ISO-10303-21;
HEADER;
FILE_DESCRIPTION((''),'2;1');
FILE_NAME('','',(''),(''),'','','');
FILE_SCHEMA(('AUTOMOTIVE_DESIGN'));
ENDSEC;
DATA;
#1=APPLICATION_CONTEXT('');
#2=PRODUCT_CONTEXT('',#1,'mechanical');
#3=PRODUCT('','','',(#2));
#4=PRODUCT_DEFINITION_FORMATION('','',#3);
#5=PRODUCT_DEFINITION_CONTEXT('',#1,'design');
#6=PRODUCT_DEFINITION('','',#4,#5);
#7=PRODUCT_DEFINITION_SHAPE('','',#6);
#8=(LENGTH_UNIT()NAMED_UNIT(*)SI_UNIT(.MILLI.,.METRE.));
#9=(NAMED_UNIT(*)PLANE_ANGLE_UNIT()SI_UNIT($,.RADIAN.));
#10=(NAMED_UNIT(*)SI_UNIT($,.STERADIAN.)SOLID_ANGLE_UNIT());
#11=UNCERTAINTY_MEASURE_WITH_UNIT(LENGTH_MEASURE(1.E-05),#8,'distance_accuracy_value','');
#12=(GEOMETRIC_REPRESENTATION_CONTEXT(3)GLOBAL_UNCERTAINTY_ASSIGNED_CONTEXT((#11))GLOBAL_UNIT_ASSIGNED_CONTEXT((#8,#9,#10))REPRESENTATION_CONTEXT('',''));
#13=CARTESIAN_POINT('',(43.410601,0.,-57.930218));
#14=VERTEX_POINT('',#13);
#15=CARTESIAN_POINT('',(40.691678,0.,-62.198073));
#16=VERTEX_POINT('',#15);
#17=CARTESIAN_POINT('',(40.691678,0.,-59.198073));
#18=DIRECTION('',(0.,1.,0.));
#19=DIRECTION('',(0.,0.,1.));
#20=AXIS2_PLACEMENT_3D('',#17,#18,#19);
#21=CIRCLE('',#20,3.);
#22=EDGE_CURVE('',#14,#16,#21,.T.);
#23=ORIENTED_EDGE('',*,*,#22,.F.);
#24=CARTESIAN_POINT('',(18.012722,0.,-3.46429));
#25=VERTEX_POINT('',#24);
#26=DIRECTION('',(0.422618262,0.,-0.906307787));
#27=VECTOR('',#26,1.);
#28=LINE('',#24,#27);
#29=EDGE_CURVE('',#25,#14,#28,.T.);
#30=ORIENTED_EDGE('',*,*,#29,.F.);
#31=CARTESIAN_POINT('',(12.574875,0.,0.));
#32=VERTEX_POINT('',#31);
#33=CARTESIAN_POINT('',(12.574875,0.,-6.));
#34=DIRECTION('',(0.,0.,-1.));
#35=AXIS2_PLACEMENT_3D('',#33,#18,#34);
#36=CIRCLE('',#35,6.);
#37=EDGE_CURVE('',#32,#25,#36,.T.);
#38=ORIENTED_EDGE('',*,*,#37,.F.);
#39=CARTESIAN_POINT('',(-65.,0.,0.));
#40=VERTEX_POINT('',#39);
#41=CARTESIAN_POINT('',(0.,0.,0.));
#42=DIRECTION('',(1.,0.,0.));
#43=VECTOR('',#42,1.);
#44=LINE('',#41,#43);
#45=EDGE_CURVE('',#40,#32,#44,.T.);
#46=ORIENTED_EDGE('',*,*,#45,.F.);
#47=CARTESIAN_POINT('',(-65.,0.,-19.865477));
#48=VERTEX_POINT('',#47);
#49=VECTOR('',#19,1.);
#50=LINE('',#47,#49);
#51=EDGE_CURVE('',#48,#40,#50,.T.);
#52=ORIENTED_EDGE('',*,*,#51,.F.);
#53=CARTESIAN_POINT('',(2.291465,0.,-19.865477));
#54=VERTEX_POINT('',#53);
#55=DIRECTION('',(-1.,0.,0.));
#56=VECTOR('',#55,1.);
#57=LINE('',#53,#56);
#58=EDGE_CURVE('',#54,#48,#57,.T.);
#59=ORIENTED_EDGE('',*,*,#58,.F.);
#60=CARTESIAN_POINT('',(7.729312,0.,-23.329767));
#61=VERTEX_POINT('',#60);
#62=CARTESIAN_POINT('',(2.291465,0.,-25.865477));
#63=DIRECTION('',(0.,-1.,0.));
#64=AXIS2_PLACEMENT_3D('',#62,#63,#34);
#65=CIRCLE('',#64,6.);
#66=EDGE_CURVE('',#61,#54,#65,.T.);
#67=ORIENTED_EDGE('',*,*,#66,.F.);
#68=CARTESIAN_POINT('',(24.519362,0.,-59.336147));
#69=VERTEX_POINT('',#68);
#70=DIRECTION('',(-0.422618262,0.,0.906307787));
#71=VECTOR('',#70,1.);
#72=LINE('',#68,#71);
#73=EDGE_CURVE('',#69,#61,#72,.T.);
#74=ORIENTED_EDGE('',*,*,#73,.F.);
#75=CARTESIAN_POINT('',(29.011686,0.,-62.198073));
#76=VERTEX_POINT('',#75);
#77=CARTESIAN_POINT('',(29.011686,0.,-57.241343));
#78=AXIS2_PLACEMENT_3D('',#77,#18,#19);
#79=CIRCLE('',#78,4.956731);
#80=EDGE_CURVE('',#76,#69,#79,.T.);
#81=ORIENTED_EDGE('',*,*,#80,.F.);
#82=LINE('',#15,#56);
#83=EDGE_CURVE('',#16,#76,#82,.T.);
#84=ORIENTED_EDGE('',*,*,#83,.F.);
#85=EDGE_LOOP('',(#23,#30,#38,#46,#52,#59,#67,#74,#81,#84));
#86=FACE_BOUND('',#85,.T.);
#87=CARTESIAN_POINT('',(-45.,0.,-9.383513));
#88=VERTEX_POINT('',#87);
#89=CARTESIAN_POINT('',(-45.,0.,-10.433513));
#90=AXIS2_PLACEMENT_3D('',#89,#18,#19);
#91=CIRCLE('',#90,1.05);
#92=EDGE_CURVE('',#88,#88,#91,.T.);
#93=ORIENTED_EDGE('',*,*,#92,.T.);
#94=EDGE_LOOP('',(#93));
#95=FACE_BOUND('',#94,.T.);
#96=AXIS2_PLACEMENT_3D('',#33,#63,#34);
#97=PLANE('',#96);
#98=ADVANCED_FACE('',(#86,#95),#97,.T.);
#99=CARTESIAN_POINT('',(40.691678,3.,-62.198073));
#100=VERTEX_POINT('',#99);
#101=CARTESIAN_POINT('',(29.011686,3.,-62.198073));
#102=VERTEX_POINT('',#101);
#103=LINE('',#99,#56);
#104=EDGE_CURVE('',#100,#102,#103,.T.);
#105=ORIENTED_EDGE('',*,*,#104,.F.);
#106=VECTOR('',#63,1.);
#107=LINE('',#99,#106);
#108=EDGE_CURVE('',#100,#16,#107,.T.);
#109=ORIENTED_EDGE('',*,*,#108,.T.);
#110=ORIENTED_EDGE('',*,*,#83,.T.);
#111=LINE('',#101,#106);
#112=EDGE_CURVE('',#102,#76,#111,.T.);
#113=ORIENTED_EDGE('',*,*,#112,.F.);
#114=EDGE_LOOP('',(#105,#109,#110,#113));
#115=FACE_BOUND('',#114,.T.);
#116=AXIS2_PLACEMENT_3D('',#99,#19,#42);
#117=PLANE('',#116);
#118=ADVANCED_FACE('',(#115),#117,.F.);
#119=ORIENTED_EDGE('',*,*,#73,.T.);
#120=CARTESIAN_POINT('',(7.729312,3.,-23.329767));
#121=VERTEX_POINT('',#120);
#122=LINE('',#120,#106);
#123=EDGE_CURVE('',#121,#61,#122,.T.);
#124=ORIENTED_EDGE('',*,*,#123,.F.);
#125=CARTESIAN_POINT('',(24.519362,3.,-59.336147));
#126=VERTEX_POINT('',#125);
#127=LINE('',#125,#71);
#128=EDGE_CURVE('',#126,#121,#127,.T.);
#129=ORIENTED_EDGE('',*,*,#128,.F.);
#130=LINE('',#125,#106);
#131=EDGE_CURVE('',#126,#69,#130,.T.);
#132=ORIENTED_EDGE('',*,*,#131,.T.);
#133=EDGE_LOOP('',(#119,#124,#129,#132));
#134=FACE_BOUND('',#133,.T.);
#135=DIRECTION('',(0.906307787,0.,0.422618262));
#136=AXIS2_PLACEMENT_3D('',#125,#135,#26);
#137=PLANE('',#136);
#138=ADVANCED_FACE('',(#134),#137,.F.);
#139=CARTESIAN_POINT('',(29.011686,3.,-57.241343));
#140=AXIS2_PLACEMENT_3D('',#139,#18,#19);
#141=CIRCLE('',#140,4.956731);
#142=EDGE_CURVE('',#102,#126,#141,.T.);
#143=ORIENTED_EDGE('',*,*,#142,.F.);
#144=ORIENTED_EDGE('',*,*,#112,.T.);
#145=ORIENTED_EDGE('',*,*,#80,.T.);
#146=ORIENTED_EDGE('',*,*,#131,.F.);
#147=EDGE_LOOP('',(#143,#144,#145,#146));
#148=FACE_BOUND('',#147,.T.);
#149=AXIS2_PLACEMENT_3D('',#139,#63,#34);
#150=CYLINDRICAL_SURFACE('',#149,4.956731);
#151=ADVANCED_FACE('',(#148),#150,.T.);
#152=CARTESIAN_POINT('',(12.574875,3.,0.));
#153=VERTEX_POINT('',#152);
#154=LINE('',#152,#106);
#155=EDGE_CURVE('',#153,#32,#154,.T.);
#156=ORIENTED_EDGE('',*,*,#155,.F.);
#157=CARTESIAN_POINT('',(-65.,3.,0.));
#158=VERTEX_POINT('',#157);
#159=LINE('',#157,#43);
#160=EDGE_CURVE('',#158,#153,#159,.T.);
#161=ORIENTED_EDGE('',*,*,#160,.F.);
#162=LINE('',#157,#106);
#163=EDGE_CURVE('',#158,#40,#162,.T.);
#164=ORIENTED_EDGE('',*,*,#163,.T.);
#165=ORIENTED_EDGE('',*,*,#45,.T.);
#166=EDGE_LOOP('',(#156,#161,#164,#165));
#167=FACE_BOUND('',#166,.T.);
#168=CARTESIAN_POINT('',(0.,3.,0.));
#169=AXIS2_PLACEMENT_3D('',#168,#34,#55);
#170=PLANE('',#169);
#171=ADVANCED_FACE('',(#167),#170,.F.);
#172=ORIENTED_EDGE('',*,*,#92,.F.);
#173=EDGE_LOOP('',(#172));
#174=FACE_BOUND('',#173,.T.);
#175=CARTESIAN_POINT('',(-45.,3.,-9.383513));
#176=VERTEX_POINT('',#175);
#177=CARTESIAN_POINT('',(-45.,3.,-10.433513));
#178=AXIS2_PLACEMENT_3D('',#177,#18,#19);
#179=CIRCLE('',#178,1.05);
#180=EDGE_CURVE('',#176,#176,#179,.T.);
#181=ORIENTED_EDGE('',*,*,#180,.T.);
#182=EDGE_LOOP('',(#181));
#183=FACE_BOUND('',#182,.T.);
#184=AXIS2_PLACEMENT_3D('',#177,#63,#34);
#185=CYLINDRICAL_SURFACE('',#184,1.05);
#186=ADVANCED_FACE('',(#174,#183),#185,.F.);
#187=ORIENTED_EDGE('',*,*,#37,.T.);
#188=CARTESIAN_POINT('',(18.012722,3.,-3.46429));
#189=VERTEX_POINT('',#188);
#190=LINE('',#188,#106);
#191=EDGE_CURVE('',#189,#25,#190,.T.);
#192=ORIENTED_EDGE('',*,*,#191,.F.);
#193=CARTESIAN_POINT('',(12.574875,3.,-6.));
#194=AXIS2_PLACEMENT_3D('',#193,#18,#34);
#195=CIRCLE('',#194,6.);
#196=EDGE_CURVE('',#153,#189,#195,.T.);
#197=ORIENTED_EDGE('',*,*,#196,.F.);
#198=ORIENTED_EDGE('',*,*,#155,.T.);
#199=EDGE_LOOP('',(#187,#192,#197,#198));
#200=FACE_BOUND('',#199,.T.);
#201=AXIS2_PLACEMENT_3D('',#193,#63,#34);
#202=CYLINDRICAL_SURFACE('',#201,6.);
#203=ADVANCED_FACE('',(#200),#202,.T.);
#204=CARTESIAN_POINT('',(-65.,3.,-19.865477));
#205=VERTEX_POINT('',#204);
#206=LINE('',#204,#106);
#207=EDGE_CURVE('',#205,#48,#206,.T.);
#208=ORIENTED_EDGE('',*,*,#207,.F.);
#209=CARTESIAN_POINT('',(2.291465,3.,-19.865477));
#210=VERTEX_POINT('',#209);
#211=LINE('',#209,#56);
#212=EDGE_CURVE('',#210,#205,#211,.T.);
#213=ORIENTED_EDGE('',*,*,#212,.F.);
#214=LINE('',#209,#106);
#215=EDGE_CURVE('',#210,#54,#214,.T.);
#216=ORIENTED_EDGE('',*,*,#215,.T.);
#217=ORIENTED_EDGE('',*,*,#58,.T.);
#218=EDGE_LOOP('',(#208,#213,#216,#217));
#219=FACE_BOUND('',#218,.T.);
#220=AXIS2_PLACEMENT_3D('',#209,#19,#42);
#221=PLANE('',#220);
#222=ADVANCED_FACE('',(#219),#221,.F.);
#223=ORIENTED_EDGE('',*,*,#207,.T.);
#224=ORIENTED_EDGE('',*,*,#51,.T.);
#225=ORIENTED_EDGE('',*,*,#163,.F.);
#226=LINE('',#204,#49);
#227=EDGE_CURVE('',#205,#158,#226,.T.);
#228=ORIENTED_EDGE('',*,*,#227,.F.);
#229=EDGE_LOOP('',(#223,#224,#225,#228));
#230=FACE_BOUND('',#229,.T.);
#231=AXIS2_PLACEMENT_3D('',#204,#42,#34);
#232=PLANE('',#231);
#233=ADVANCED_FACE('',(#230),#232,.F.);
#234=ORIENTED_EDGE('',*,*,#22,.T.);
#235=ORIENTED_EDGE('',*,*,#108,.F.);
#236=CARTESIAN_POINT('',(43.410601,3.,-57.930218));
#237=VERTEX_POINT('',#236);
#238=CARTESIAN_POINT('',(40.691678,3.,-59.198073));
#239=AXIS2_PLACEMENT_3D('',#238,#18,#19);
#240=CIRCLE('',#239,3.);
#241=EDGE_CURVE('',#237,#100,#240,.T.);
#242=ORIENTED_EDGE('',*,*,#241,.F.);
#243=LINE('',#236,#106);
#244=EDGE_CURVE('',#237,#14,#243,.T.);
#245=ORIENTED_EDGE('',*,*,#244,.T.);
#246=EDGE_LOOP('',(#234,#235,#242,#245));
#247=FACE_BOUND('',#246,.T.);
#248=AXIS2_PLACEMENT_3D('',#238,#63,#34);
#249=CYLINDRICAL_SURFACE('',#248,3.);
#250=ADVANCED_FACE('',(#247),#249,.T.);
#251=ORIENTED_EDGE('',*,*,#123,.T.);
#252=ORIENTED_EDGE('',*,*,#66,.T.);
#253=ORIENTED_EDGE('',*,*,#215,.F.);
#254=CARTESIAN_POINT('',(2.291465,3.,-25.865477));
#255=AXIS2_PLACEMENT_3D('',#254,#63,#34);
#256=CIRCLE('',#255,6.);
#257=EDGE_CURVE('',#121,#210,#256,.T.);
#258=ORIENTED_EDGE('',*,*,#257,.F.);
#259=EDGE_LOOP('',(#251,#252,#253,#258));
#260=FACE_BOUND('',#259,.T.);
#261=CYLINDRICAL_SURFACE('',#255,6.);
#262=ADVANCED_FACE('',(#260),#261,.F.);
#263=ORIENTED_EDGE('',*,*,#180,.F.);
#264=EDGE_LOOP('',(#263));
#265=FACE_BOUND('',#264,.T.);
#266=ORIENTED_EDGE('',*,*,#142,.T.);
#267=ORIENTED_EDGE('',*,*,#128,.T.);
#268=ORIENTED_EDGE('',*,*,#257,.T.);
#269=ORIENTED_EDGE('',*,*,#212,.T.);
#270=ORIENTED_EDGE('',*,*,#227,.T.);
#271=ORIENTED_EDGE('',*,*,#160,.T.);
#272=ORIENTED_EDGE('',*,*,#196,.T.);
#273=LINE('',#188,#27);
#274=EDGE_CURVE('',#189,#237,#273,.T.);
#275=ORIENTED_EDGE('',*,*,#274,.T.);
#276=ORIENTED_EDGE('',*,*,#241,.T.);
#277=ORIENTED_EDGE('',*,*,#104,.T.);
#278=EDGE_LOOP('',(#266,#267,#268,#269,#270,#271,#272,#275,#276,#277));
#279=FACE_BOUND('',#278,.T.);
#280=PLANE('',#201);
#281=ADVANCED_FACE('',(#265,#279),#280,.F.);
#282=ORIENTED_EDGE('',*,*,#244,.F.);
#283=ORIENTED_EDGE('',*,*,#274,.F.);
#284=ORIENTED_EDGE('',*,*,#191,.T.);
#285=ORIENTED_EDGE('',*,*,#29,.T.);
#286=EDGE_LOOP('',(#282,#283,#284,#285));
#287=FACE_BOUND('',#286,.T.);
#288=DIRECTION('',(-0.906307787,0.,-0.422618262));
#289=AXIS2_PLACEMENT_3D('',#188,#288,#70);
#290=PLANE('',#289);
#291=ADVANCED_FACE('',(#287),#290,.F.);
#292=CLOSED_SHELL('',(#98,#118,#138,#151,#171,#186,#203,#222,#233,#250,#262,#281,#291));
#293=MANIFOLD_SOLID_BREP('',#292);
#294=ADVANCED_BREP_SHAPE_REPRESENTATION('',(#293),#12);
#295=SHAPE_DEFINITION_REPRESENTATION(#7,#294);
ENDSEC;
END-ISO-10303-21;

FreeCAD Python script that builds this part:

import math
import FreeCAD as App
import Part
import Sketcher
from FreeCAD import Vector
Q = App.Units.Quantity

doc = App.newDocument("Part")
params = doc.addObject("Spreadsheet::Sheet", "Params")
for row, (alias, value) in enumerate([
    ("sketch1_radius", "6 mm"),
    ("sketch1_radius2", "3 mm"),
    ("sketch1_diameter", "2.1 mm"),
    ("pad1_length", "3 mm"),
], start=1):
    params.set(f"A{row}", alias)
    params.set(f"B{row}", "=" + value)
    params.setAlias(f"B{row}", alias)

body = doc.addObject("PartDesign::Body", "Body")

sketch1 = body.newObject("Sketcher::SketchObject", "Sketch")
sketch1.AttachmentSupport = (doc.getObject("XZ_Plane"), [""])
sketch1.MapMode = "FlatFace"
sketch1.addGeometry(Part.LineSegment(Vector(-65, -19.9, 0), Vector(-65, 0, 0)), False)
sketch1.addGeometry(Part.LineSegment(Vector(-65, 0, 0), Vector(12.6, 0, 0)), False)
sketch1.addGeometry(Part.ArcOfCircle(Part.Circle(Vector(12.6, -6, 0), Vector(0, 0, 1), 6), math.radians(25), math.radians(90)), False)
sketch1.addGeometry(Part.LineSegment(Vector(18, -3.5, 0), Vector(43.4, -57.9, 0)), False)
sketch1.addGeometry(Part.ArcOfCircle(Part.Circle(Vector(40.7, -59.2, 0), Vector(0, 0, 1), 3), math.radians(-90), math.radians(25)), False)
sketch1.addGeometry(Part.LineSegment(Vector(40.7, -62.2, 0), Vector(29, -62.2, 0)), False)
sketch1.addGeometry(Part.ArcOfCircle(Part.Circle(Vector(29, -57.2, 0), Vector(0, 0, 1), 5), math.radians(-155), math.radians(-90)), False)
sketch1.addGeometry(Part.LineSegment(Vector(24.5, -59.3, 0), Vector(7.7, -23.3, 0)), False)
sketch1.addGeometry(Part.ArcOfCircle(Part.Circle(Vector(2.3, -25.9, 0), Vector(0, 0, 1), 6), math.radians(25), math.radians(90)), False)
sketch1.addGeometry(Part.LineSegment(Vector(2.3, -19.9, 0), Vector(-65, -19.9, 0)), False)
sketch1.addGeometry(Part.Circle(Vector(-45, -10.4, 0), Vector(0, 0, 1), 1.1), False)
sketch1.addConstraint(Sketcher.Constraint("Coincident", 0, 2, 1, 1))
sketch1.addConstraint(Sketcher.Constraint("Tangent", 1, 2, 2, 2))
sketch1.addConstraint(Sketcher.Constraint("Tangent", 2, 1, 3, 1))
sketch1.addConstraint(Sketcher.Constraint("Tangent", 3, 2, 4, 2))
sketch1.addConstraint(Sketcher.Constraint("Tangent", 4, 1, 5, 1))
sketch1.addConstraint(Sketcher.Constraint("Tangent", 5, 2, 6, 2))
sketch1.addConstraint(Sketcher.Constraint("Tangent", 6, 1, 7, 1))
sketch1.addConstraint(Sketcher.Constraint("Tangent", 7, 2, 8, 1))
sketch1.addConstraint(Sketcher.Constraint("Tangent", 8, 2, 9, 1))
sketch1.addConstraint(Sketcher.Constraint("Coincident", 9, 2, 0, 1))
sketch1.addConstraint(Sketcher.Constraint("Vertical", 0))
sketch1.addConstraint(Sketcher.Constraint("Horizontal", 1))
sketch1.addConstraint(Sketcher.Constraint("Horizontal", 5))
sketch1.addConstraint(Sketcher.Constraint("Horizontal", 9))
sketch1.addConstraint(Sketcher.Constraint("Equal", 2, 8))
sketch1.addConstraint(Sketcher.Constraint("PointOnObject", 0, 2, -1))
sketch1.addConstraint(Sketcher.Constraint("Parallel", 3, 7))
sketch1.addConstraint(Sketcher.Constraint("Radius", 2, 6.0))
sketch1.addConstraint(Sketcher.Constraint("Radius", 4, 3.0))
sketch1.addConstraint(Sketcher.Constraint("Diameter", 10, 2.1))
sketch1.addConstraint(Sketcher.Constraint("Angle", 3, Q("-65 deg")))
sketch1.addConstraint(Sketcher.Constraint("DistanceX", 10, 3, -1, 1, 45.0))
sketch1.addConstraint(Sketcher.Constraint("DistanceX", 0, 2, -1, 1, 65.0))
sketch1.addConstraint(Sketcher.Constraint("Radius", 6, 4.956731))
sketch1.addConstraint(Sketcher.Constraint("DistanceX", -1, 1, 3, 2, 43.410601))
sketch1.addConstraint(Sketcher.Constraint("DistanceX", 1, 1, 1, 2, 77.574875))
sketch1.addConstraint(Sketcher.Constraint("DistanceX", 5, 2, 5, 1, 11.679992))
sketch1.addConstraint(Sketcher.Constraint("DistanceX", 9, 2, 9, 1, 67.291465))
sketch1.addConstraint(Sketcher.Constraint("DistanceY", 6, 3, 10, 3, 46.807829))
sketch1.setExpression("Constraints[17]", "Params.sketch1_radius")
sketch1.setExpression("Constraints[18]", "Params.sketch1_radius2")
sketch1.setExpression("Constraints[19]", "Params.sketch1_diameter")
pad1 = body.newObject("PartDesign::Pad", "Pad")
pad1.Profile = sketch1
pad1.setExpression("Length", "Params.pad1_length")
pad1.Reversed = True

doc.recompute()
